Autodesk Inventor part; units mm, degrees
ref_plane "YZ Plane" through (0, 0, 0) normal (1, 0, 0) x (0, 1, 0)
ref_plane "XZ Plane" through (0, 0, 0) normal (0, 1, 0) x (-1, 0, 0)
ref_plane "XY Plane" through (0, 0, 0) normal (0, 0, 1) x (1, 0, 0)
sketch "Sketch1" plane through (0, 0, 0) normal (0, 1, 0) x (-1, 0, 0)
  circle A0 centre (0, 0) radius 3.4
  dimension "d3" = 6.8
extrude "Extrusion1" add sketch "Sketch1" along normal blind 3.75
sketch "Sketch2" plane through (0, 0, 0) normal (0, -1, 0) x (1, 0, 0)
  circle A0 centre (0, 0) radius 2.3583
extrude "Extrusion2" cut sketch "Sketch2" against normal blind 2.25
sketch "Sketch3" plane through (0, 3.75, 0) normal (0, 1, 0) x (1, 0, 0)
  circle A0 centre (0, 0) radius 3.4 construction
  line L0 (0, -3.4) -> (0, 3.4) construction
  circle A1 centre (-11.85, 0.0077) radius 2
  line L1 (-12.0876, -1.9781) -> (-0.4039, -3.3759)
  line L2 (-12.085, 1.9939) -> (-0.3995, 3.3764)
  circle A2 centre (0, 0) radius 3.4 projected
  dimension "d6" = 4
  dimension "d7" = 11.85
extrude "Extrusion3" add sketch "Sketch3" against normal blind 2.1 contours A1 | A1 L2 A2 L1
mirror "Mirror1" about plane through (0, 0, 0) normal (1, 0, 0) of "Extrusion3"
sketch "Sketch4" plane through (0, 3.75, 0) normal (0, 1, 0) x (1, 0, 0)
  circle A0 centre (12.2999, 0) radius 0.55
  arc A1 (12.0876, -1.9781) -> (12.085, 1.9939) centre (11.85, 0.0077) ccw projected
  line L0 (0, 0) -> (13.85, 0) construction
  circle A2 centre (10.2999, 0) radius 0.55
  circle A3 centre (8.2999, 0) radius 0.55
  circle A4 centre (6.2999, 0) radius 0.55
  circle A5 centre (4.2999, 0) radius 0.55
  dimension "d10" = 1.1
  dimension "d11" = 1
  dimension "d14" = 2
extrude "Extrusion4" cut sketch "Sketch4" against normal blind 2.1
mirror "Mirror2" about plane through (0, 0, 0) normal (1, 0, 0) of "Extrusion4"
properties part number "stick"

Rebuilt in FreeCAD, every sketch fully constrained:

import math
import FreeCAD as App
import Part
import Sketcher
Q = App.Units.Quantity

doc = App.newDocument("Part")
body = doc.addObject("PartDesign::Body", "Body")

# Sketch on XZ plane
sketch1 = body.newObject("Sketcher::SketchObject", "Sketch")
sketch1.AttachmentSupport = (doc.getObject("XZ_Plane"), [""])
sketch1.MapMode = "FlatFace"
sketch1.addGeometry(Part.Circle(App.Vector(0, 0, 0), App.Vector(0, 0, 1), 3.4), False)
sketch1.addConstraint(Sketcher.Constraint("Coincident", 0, 3, -1, 1))
sketch1.addConstraint(Sketcher.Constraint("Diameter", 0, Q("6.8 mm")))
pad1 = body.newObject("PartDesign::Pad", "Pad")
pad1.Profile = sketch1
pad1.Length = 3.75
pad1.Reversed = True

# Sketch on XZ plane
sketch2 = body.newObject("Sketcher::SketchObject", "Sketch001")
sketch2.AttachmentSupport = (doc.getObject("XZ_Plane"), [""])
sketch2.MapMode = "FlatFace"
sketch2.addGeometry(Part.Circle(App.Vector(0, 0, 0), App.Vector(0, 0, 1), 2.3583), False)
sketch2.addConstraint(Sketcher.Constraint("Coincident", 0, 3, -1, 1))
sketch2.addConstraint(Sketcher.Constraint("Diameter", 0, Q("4.7166 mm")))
pocket1 = body.newObject("PartDesign::Pocket", "Pocket")
pocket1.Profile = sketch2
pocket1.Length = 2.25

# Sketch on XZ plane
sketch3 = body.newObject("Sketcher::SketchObject", "Sketch002")
sketch3.AttachmentSupport = (doc.getObject("XZ_Plane"), [""])
sketch3.MapMode = "FlatFace"
sketch3.AttachmentOffset = App.Placement(App.Vector(0, 0, -3.75), App.Rotation())
sketch3.addGeometry(Part.ArcOfCircle(Part.Circle(App.Vector(-11.85, -0.0077, 0), App.Vector(0, 0, 1), 2), math.radians(96.822976), math.radians(263.25234)), False)
sketch3.addGeometry(Part.LineSegment(App.Vector(-12.0876, 1.9781, 0), App.Vector(-0.4039, 3.3759, 0)), False)
sketch3.addGeometry(Part.ArcOfCircle(Part.Circle(App.Vector(0, 0, 0), App.Vector(0, 0, 1), 3.4), math.radians(96.822561), math.radians(263.252063)), False)
sketch3.addGeometry(Part.LineSegment(App.Vector(-0.3995, -3.3764, 0), App.Vector(-12.085, -1.9939, 0)), False)
sketch3.addConstraint(Sketcher.Constraint("Tangent", 0, 1, 1, 1))
sketch3.addConstraint(Sketcher.Constraint("Tangent", 1, 2, 2, 1))
sketch3.addConstraint(Sketcher.Constraint("Tangent", 2, 2, 3, 1))
sketch3.addConstraint(Sketcher.Constraint("Tangent", 3, 2, 0, 2))
sketch3.addConstraint(Sketcher.Constraint("Coincident", 2, 3, -1, 1))
sketch3.addConstraint(Sketcher.Constraint("Radius", 0, Q("2 mm")))
sketch3.addConstraint(Sketcher.Constraint("Radius", 2, Q("3.4 mm")))
sketch3.addConstraint(Sketcher.Constraint("DistanceX", 0, 3, -1, 1, Q("11.85 mm")))
sketch3.addConstraint(Sketcher.Constraint("DistanceX", 1, 2, -1, 1, Q("0.404 mm")))
pad2 = body.newObject("PartDesign::Pad", "Pad001")
pad2.Profile = sketch3
pad2.Length = 2.1
doc.recompute()

mirrored = body.newObject("PartDesign::Mirrored", "Mirrored")
mirrored.Originals = [pad2]
mirrored.MirrorPlane = (doc.getObject("YZ_Plane"), [""])
body.Tip = mirrored

# Sketch on XZ plane
sketch4 = body.newObject("Sketcher::SketchObject", "Sketch003")
sketch4.AttachmentSupport = (doc.getObject("XZ_Plane"), [""])
sketch4.MapMode = "FlatFace"
sketch4.AttachmentOffset = App.Placement(App.Vector(0, 0, -3.75), App.Rotation())
sketch4.addGeometry(Part.Circle(App.Vector(12.2999, 0, 0), App.Vector(0, 0, 1), 0.55), False)
sketch4.addGeometry(Part.Circle(App.Vector(10.2999, 0, 0), App.Vector(0, 0, 1), 0.55), False)
sketch4.addGeometry(Part.Circle(App.Vector(8.2999, 0, 0), App.Vector(0, 0, 1), 0.55), False)
sketch4.addGeometry(Part.Circle(App.Vector(6.2999, 0, 0), App.Vector(0, 0, 1), 0.55), False)
sketch4.addGeometry(Part.Circle(App.Vector(4.2999, 0, 0), App.Vector(0, 0, 1), 0.55), False)
sketch4.addConstraint(Sketcher.Constraint("Equal", 0, 1))
sketch4.addConstraint(Sketcher.Constraint("Equal", 1, 2))
sketch4.addConstraint(Sketcher.Constraint("Equal", 2, 3))
sketch4.addConstraint(Sketcher.Constraint("Equal", 3, 4))
sketch4.addConstraint(Sketcher.Constraint("PointOnObject", 0, 3, -1))
sketch4.addConstraint(Sketcher.Constraint("PointOnObject", 1, 3, -1))
sketch4.addConstraint(Sketcher.Constraint("PointOnObject", 2, 3, -1))
sketch4.addConstraint(Sketcher.Constraint("PointOnObject", 3, 3, -1))
sketch4.addConstraint(Sketcher.Constraint("PointOnObject", 4, 3, -1))
sketch4.addConstraint(Sketcher.Constraint("Diameter", 0, Q("1.1 mm")))
sketch4.addConstraint(Sketcher.Constraint("DistanceX", 1, 3, 0, 3, Q("2 mm")))
sketch4.addConstraint(Sketcher.Constraint("DistanceX", 2, 3, 1, 3, Q("2 mm")))
sketch4.addConstraint(Sketcher.Constraint("DistanceX", 3, 3, 2, 3, Q("2 mm")))
sketch4.addConstraint(Sketcher.Constraint("DistanceX", 4, 3, 3, 3, Q("2 mm")))
sketch4.addConstraint(Sketcher.Constraint("DistanceX", -1, 1, 0, 3, Q("12.3 mm")))
pocket2 = body.newObject("PartDesign::Pocket", "Pocket001")
pocket2.Profile = sketch4
pocket2.Length = 2.1
pocket2.Reversed = True
doc.recompute()

mirrored2 = body.newObject("PartDesign::Mirrored", "Mirrored001")
mirrored2.Originals = [pocket2]
mirrored2.MirrorPlane = (doc.getObject("YZ_Plane"), [""])
body.Tip = mirrored2

doc.recompute()
